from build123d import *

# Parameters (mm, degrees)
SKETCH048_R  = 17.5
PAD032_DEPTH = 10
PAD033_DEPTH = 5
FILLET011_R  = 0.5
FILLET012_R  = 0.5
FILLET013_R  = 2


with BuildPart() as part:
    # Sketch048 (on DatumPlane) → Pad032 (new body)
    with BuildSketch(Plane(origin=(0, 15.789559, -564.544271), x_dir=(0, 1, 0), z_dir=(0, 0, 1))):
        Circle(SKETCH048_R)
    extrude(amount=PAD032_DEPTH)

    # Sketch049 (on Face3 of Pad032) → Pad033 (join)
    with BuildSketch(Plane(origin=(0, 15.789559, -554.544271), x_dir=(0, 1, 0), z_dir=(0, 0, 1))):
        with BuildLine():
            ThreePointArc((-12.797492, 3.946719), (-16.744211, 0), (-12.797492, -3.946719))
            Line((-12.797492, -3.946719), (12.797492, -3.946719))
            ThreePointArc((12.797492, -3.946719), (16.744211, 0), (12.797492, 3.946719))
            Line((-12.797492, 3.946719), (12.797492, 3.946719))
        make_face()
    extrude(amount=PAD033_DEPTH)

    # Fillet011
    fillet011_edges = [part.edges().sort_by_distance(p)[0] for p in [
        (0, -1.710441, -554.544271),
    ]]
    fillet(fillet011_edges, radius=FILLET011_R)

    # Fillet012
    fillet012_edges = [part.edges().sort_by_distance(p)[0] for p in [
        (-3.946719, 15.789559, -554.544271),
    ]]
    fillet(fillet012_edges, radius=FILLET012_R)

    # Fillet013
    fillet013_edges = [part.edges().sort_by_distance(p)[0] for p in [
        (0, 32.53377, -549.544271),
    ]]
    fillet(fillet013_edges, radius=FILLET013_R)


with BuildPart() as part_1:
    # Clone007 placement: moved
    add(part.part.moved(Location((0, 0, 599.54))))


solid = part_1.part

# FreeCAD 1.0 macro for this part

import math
import FreeCAD as App
import Part
import Sketcher
Q = App.Units.Quantity


def edges_at(feature, points):
    """Names of the edges that pass closest to the given points."""
    edges = feature.Shape.Edges
    near = lambda p: min(range(len(edges)), key=lambda i: edges[i].distToShape(Part.Vertex(*p))[0])
    return sorted({f"Edge{near(p) + 1}" for p in points})

doc = App.newDocument("Part")
body = doc.addObject("PartDesign::Body", "Body")

# Sketch on XY plane
sketch1 = body.newObject("Sketcher::SketchObject", "Sketch")
sketch1.AttachmentSupport = (doc.getObject("XY_Plane"), [""])
sketch1.MapMode = "FlatFace"
sketch1.AttachmentOffset = App.Placement(App.Vector(0, 0, -564.544271), App.Rotation())
sketch1.addGeometry(Part.Circle(App.Vector(0, 15.789559, 0), App.Vector(0, 0, 1), 17.5), False)
sketch1.addConstraint(Sketcher.Constraint("PointOnObject", 0, 3, -2))
sketch1.addConstraint(Sketcher.Constraint("Diameter", 0, Q("35 mm")))
sketch1.addConstraint(Sketcher.Constraint("DistanceY", -1, 1, 0, 3, Q("15.789559 mm")))
pad1 = body.newObject("PartDesign::Pad", "Pad")
pad1.Profile = sketch1
pad1.Length = 10

# Sketch on XY plane
sketch2 = body.newObject("Sketcher::SketchObject", "Sketch001")
sketch2.AttachmentSupport = (doc.getObject("XY_Plane"), [""])
sketch2.MapMode = "FlatFace"
sketch2.AttachmentOffset = App.Placement(App.Vector(0, 0, -554.544271), App.Rotation())
sketch2.addGeometry(Part.ArcOfCircle(Part.Circle(App.Vector(0, 2.992067, 0), App.Vector(0, 0, 1), 3.946719), math.radians(180), math.radians(360)), False)
sketch2.addGeometry(Part.LineSegment(App.Vector(3.946719, 2.992067, 0), App.Vector(3.946719, 28.587051, 0)), False)
sketch2.addGeometry(Part.ArcOfCircle(Part.Circle(App.Vector(0, 28.587051, 0), App.Vector(0, 0, 1), 3.946719), math.radians(0), math.radians(180)), False)
sketch2.addGeometry(Part.LineSegment(App.Vector(-3.946719, 28.587051, 0), App.Vector(-3.946719, 2.992067, 0)), False)
sketch2.addConstraint(Sketcher.Constraint("Tangent", 0, 2, 1, 1))
sketch2.addConstraint(Sketcher.Constraint("Tangent", 1, 2, 2, 1))
sketch2.addConstraint(Sketcher.Constraint("Tangent", 2, 2, 3, 1))
sketch2.addConstraint(Sketcher.Constraint("Tangent", 3, 2, 0, 1))
sketch2.addConstraint(Sketcher.Constraint("Vertical", 1))
sketch2.addConstraint(Sketcher.Constraint("Vertical", 3))
sketch2.addConstraint(Sketcher.Constraint("PointOnObject", 0, 3, -2))
sketch2.addConstraint(Sketcher.Constraint("Radius", 0, Q("3.946719 mm")))
sketch2.addConstraint(Sketcher.Constraint("DistanceY", 1, 1, 1, 2, Q("25.594984 mm")))
sketch2.addConstraint(Sketcher.Constraint("DistanceY", -1, 1, 2, 3, Q("28.587051 mm")))
pad2 = body.newObject("PartDesign::Pad", "Pad001")
pad2.Profile = sketch2
pad2.Length = 5
doc.recompute()

fillet = body.newObject("PartDesign::Fillet", "Fillet")
fillet.Base = (pad2, edges_at(pad2, [(0, -1.71, -554.544)]))
fillet.Radius = 0.5
doc.recompute()

fillet2 = body.newObject("PartDesign::Fillet", "Fillet001")
fillet2.Base = (fillet, edges_at(fillet, [(-3.947, 15.79, -554.544)]))
fillet2.Radius = 0.5
doc.recompute()

fillet3 = body.newObject("PartDesign::Fillet", "Fillet002")
fillet3.Base = (fillet2, edges_at(fillet2, [(0, 32.534, -549.544)]))
fillet3.Radius = 2
body2 = doc.addObject("PartDesign::Body", "Body001")
doc.recompute()

body.Placement = App.Placement(App.Vector(0, 0, 599.54), App.Rotation(App.Vector(0, 0, 1), 0))
boolean = body2.newObject("PartDesign::Boolean", "Boolean")
boolean.Type = "Fuse"
boolean.addObjects([body])

doc.recompute()
